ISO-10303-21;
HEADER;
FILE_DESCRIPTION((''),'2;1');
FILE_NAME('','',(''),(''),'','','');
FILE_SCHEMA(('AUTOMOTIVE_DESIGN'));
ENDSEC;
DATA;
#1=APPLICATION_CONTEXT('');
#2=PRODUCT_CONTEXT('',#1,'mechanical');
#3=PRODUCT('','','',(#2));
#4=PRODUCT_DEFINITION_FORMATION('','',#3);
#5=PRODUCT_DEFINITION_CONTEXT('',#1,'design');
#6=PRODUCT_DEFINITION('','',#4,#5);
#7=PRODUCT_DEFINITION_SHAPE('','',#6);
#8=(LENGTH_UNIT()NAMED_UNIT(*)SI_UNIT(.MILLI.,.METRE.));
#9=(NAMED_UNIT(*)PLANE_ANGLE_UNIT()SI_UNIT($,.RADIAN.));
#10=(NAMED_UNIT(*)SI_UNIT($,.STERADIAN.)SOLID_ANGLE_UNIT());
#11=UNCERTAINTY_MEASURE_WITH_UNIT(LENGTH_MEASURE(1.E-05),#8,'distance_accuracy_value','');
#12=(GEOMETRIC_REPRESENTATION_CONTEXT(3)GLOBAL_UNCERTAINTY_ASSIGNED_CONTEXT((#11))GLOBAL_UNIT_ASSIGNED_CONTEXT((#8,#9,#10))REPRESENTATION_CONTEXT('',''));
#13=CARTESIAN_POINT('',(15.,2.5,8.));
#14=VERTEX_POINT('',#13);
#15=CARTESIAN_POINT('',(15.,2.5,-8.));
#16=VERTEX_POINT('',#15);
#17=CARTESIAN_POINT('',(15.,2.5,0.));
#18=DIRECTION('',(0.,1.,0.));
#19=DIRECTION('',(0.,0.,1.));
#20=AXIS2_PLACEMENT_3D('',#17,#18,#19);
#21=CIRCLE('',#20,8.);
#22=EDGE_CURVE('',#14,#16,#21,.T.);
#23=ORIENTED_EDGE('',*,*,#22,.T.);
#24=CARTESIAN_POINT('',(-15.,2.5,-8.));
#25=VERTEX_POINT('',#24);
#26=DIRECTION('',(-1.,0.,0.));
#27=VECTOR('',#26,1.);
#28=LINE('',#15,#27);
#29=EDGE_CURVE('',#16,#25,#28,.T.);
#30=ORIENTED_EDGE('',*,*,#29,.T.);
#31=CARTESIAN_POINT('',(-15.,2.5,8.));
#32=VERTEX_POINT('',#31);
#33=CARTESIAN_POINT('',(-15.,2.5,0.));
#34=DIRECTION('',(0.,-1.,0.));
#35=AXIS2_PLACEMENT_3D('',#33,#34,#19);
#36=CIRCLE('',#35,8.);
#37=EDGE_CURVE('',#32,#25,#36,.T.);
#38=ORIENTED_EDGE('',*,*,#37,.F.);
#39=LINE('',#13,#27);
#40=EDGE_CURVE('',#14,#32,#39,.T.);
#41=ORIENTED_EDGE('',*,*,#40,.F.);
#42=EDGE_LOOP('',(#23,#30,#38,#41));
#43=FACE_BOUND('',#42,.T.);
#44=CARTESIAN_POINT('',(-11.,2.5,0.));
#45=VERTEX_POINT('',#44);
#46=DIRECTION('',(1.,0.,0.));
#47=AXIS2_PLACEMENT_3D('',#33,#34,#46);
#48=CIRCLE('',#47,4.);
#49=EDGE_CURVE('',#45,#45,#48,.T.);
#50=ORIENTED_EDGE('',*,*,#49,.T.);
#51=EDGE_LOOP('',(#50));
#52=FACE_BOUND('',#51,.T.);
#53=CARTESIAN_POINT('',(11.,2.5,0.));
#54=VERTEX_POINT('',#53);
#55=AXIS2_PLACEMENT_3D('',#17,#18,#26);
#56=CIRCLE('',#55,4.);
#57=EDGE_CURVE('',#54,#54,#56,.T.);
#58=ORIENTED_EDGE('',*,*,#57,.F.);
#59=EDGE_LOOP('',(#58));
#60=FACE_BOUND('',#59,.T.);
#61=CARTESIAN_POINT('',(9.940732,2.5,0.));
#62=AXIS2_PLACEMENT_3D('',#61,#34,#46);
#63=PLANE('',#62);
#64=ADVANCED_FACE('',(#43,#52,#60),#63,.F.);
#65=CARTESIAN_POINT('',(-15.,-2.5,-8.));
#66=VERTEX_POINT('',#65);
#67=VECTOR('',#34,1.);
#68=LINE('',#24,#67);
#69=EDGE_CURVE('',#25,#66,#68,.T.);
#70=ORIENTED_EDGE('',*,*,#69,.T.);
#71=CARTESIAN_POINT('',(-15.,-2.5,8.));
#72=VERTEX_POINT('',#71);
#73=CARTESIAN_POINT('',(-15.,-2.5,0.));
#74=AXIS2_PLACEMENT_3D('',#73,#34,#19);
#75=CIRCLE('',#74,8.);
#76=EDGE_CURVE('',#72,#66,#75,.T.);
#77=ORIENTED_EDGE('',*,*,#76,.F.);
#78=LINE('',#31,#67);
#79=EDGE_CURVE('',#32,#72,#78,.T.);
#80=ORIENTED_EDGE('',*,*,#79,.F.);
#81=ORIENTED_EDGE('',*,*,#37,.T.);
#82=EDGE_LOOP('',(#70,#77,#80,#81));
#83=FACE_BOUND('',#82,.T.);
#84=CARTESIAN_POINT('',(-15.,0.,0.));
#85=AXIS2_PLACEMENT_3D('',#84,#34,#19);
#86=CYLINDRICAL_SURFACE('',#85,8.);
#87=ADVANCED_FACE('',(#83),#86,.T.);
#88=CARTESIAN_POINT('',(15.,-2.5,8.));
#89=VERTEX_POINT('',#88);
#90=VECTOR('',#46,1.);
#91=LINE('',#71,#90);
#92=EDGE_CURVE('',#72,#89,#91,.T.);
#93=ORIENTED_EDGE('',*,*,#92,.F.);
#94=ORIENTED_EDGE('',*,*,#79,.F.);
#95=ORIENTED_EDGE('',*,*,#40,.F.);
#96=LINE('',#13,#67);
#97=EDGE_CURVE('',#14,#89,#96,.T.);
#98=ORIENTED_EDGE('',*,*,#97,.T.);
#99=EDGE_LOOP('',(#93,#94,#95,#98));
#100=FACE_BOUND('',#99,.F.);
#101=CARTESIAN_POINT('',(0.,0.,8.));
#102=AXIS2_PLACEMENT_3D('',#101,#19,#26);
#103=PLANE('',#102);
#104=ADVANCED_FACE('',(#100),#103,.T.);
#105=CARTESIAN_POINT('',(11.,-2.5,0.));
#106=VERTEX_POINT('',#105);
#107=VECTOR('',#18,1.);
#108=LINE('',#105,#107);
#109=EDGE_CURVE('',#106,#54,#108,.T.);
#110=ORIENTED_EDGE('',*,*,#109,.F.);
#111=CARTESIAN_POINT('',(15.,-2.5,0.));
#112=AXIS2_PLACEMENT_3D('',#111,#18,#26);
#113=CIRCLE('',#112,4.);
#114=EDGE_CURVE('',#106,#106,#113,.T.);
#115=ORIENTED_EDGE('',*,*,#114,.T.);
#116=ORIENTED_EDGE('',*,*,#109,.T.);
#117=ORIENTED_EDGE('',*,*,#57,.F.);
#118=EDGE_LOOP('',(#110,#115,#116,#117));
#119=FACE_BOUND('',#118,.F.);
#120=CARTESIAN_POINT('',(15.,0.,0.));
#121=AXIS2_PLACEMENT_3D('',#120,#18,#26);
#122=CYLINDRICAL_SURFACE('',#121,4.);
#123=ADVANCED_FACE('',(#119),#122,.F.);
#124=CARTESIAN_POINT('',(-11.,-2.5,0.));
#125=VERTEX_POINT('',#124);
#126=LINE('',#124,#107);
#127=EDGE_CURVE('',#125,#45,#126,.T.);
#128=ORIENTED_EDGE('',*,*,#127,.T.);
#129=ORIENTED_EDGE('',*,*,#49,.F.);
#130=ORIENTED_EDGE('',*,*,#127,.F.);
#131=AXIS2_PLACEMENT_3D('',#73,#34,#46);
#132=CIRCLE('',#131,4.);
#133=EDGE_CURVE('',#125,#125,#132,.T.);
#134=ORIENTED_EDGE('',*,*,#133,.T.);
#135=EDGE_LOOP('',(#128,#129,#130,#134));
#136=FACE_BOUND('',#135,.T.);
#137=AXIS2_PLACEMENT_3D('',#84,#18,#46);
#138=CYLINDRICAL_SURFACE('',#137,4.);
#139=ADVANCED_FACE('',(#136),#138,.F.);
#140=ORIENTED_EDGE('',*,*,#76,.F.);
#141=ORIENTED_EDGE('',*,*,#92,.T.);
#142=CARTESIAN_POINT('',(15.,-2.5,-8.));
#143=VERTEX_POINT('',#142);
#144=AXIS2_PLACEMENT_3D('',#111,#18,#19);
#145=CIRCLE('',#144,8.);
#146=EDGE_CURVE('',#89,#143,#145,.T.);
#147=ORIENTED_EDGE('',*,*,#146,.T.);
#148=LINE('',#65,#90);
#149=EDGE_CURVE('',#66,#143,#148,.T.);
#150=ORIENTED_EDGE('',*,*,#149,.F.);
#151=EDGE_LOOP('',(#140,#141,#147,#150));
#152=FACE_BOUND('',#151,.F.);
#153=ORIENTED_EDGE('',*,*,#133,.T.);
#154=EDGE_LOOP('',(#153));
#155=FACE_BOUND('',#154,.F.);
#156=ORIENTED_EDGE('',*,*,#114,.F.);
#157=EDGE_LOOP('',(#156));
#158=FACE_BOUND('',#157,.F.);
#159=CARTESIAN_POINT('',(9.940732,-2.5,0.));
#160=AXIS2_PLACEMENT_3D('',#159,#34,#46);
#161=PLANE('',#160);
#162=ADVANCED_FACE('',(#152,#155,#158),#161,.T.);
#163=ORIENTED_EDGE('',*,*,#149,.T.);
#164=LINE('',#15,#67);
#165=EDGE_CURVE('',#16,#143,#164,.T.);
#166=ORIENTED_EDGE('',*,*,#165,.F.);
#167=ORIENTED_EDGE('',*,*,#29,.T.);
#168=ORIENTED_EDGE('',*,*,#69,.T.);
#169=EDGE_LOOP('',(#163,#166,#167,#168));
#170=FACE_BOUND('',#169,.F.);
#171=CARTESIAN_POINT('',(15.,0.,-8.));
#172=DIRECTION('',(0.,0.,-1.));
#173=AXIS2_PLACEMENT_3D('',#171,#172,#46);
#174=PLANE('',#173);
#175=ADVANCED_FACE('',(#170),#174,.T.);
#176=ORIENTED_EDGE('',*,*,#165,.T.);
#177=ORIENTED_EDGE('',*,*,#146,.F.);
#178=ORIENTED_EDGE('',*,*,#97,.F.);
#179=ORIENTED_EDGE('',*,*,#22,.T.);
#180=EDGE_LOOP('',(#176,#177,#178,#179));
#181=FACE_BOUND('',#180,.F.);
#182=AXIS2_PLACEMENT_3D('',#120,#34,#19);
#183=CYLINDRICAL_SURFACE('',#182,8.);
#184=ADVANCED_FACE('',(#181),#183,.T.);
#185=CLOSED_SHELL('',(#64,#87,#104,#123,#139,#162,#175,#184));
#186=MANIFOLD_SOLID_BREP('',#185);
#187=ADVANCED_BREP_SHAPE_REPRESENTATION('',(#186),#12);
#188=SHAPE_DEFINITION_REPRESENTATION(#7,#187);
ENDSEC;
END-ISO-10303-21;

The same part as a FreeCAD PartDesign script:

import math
import FreeCAD as App
import Part
import Sketcher

V = App.Vector
Q = App.Units.Quantity

doc = App.newDocument("Part")
body = doc.addObject("PartDesign::Body", "Body")

# Sketch on XZ plane
sketch1 = doc.addObject("Sketcher::SketchObject", "Sketch")
body.addObject(sketch1)
sketch1.AttachmentSupport = (doc.XZ_Plane, [""])
sketch1.MapMode = "FlatFace"
sketch1.addGeometry([
    Part.LineSegment(V(0, 8, 0), V(-15, 8, 0)),  # 0
    Part.ArcOfCircle(Part.Circle(V(-15, 0, 0), V(0, 0, 1), 8), math.radians(90), math.radians(270)),  # 1
    Part.LineSegment(V(-15, -8, 0), V(0, -8, 0)),  # 2
    Part.LineSegment(V(0, -8, 0), V(0, 8, 0)),  # 3
    Part.Circle(V(-15, 0, 0), V(0, 0, 1), 4),  # 4
], False)
sketch1.addConstraint([
    Sketcher.Constraint("Tangent", 0, 2, 1, 1),
    Sketcher.Constraint("Tangent", 1, 2, 2, 1),
    Sketcher.Constraint("Coincident", 2, 2, 3, 1),
    Sketcher.Constraint("Coincident", 3, 2, 0, 1),
    Sketcher.Constraint("Horizontal", 0),
    Sketcher.Constraint("Horizontal", 2),
    Sketcher.Constraint("Vertical", 3),
    Sketcher.Constraint("Coincident", 4, 3, 1, 3),
    Sketcher.Constraint("Symmetric", 2, 2, 3, 2, -1, 1),
    Sketcher.Constraint("Diameter", 4, Q("8 mm")),
    Sketcher.Constraint("Radius", 1, Q("8 mm")),
    Sketcher.Constraint("DistanceX", 0, 2, 0, 1, Q("15 mm")),
])
pad1 = doc.addObject("PartDesign::Pad", "Pad")
body.addObject(pad1)
pad1.Profile = sketch1
pad1.Length = 5
pad1.Midplane = True
body2 = doc.addObject("PartDesign::Body", "Body001")
doc.recompute()

body2.BaseFeature = body
doc.recompute()

mirroring = doc.addObject("Part::Mirroring", "Mirroring")
mirroring.Source = body
mirroring.Base = V(0, 0, 0)
mirroring.Normal = V(1, 0, 0)
body3 = doc.addObject("PartDesign::Body", "Body002")
body3.BaseFeature = mirroring
boolean = doc.addObject("PartDesign::Boolean", "Boolean")
body2.addObject(boolean)
boolean.Type = "Fuse"
boolean.addObjects([body3])
doc.recompute()
mirroring.Visibility = False

doc.recompute()
